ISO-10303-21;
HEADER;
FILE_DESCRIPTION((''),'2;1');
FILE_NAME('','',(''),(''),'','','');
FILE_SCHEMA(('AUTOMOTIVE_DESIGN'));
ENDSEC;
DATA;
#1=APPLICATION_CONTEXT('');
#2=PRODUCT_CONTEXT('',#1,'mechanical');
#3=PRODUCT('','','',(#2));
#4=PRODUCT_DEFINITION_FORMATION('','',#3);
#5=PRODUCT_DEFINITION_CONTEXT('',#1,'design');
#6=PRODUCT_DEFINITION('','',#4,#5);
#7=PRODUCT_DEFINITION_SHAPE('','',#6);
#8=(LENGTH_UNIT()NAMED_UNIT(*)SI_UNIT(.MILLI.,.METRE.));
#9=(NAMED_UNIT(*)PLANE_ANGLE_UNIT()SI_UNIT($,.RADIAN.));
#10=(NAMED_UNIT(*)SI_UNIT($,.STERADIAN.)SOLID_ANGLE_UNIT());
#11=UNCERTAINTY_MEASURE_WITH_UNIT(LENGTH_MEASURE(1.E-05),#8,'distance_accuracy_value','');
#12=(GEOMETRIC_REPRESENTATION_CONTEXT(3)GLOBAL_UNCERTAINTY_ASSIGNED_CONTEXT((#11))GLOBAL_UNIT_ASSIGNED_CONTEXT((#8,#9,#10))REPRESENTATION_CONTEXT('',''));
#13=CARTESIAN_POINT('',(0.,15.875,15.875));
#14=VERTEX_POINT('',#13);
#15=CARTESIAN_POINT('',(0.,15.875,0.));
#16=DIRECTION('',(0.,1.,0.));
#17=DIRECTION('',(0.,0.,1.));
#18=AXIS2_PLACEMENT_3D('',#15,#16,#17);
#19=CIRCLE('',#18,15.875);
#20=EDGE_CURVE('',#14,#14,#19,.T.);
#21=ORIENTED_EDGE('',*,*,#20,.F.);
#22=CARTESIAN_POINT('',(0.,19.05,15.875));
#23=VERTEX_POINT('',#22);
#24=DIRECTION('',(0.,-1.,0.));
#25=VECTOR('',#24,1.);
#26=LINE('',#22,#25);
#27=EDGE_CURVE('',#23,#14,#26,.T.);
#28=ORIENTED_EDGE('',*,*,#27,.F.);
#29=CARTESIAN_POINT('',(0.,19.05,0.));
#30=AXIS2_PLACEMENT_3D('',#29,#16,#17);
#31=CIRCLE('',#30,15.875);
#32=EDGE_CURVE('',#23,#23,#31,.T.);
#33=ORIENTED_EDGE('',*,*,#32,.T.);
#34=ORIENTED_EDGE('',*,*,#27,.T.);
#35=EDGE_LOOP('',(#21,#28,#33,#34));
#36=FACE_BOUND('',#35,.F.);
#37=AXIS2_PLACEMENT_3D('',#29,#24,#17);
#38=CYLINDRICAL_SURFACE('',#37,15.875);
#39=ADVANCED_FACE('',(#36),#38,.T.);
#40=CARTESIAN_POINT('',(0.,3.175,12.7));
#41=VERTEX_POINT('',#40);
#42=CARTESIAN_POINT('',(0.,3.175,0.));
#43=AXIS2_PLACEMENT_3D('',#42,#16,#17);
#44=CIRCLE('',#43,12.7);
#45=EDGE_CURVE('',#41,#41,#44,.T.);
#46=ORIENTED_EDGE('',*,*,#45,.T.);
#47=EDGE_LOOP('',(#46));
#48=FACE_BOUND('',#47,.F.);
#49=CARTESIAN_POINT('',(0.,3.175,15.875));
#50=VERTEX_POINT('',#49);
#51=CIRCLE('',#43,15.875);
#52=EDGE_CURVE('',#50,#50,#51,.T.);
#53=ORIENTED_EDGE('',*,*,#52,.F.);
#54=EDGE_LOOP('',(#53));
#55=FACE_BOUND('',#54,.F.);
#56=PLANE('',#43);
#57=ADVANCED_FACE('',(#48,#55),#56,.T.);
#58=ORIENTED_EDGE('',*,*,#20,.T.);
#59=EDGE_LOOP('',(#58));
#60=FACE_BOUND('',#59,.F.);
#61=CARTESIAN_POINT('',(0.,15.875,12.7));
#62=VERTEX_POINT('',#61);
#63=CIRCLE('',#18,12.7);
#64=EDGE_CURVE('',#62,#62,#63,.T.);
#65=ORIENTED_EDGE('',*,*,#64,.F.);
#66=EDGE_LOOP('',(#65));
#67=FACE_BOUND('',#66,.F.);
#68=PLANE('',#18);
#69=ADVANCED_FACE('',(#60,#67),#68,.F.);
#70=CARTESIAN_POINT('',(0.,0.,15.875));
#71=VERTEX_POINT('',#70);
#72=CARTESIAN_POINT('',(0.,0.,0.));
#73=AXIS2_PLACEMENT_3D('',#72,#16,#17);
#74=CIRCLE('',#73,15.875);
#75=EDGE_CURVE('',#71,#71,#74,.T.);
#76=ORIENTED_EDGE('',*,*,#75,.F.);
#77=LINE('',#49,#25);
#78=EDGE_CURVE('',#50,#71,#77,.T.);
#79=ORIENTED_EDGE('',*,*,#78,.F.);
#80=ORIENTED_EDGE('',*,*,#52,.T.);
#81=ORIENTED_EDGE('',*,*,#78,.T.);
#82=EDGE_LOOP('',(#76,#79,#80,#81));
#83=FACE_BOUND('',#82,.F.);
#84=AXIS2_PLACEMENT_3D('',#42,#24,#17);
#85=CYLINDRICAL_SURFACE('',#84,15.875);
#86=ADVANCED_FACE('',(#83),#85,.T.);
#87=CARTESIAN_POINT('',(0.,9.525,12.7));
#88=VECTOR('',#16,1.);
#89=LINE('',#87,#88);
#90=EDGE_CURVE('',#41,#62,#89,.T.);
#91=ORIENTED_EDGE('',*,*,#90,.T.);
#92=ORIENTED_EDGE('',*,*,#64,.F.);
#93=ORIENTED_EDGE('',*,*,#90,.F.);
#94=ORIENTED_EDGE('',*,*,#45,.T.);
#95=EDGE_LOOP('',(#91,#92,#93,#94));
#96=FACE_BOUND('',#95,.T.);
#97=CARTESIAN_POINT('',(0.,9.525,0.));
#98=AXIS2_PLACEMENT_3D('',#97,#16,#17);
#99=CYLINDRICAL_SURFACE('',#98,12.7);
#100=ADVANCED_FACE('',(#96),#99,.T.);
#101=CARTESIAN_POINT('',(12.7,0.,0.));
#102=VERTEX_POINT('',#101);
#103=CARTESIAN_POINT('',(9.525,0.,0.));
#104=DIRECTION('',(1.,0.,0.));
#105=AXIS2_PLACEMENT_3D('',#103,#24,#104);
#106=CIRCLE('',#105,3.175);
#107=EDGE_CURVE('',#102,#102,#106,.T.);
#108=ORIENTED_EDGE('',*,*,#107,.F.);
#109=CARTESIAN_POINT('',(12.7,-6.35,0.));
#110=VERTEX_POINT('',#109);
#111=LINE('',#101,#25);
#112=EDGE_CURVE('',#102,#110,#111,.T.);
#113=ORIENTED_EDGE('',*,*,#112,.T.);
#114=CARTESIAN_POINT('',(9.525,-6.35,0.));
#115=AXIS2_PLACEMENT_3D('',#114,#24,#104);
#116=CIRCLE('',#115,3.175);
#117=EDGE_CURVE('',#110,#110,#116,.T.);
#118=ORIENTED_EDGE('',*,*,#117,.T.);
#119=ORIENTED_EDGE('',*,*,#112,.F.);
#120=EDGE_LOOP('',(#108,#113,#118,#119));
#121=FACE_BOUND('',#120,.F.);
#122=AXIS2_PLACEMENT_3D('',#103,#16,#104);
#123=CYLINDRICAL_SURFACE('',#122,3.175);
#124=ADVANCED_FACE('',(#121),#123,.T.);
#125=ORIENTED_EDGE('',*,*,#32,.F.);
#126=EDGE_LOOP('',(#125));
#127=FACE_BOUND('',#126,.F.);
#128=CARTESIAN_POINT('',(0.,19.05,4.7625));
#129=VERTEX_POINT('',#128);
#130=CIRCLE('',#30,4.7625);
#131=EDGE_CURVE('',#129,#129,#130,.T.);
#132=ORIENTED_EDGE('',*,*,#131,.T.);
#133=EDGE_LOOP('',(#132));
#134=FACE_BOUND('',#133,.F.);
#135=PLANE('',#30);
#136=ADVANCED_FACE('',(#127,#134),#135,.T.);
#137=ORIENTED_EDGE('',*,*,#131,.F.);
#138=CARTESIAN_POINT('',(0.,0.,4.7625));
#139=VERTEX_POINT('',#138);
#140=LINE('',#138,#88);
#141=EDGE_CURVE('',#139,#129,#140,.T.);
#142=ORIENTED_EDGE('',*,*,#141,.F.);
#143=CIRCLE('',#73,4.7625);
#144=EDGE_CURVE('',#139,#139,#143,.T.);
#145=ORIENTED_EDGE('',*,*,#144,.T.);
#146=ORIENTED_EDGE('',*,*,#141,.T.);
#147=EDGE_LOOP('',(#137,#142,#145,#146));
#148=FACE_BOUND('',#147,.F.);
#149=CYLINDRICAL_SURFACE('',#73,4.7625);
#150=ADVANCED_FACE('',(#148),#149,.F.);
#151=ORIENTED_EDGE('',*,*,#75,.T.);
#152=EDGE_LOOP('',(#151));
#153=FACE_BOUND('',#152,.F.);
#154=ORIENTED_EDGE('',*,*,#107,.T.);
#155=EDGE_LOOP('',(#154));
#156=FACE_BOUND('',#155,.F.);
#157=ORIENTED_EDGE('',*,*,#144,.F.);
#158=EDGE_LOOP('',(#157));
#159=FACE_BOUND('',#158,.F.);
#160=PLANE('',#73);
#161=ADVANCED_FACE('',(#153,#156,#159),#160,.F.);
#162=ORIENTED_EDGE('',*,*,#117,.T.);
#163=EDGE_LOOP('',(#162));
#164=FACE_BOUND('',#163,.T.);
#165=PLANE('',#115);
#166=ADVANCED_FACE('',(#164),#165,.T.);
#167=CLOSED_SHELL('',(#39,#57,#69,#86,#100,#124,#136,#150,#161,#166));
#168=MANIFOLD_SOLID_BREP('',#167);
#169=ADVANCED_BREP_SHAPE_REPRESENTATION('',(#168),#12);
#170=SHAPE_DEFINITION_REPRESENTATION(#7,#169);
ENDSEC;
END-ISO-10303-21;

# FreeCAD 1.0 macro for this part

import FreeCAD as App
import Part
import Sketcher

V = App.Vector
Q = App.Units.Quantity


def add_polygon(sketch, points):
    """Adds a closed chain of lines whose ends are joined by coincident constraints."""
    first, n = sketch.GeometryCount, len(points)
    for a, b in zip(points, points[1:] + points[:1]):
        sketch.addGeometry(Part.LineSegment(App.Vector(*a, 0), App.Vector(*b, 0)), False)
    for i in range(n):
        sketch.addConstraint(Sketcher.Constraint("Coincident", first + i, 2, first + (i + 1) % n, 1))

doc = App.newDocument("Part")
body = doc.addObject("PartDesign::Body", "Body")

sketch1 = doc.addObject("Sketcher::SketchObject", "Sketch")
body.addObject(sketch1)
sketch1.AttachmentSupport = (doc.YZ_Plane, [""])
sketch1.MapMode = "FlatFace"
add_polygon(sketch1, [(15.9, 12.7), (3.2, 12.7), (3.2, 15.9), (0, 15.9), (0, 4.8), (19.1, 4.8), (19.1, 15.9), (15.9, 15.9)])
sketch1.addConstraint([
    Sketcher.Constraint("Horizontal", 0),
    Sketcher.Constraint("Vertical", 1),
    Sketcher.Constraint("Horizontal", 2),
    Sketcher.Constraint("Vertical", 3),
    Sketcher.Constraint("Horizontal", 4),
    Sketcher.Constraint("Vertical", 5),
    Sketcher.Constraint("Horizontal", 6),
    Sketcher.Constraint("Vertical", 7),
    Sketcher.Constraint("PointOnObject", 2, 2, -2),
    Sketcher.Constraint("Horizontal", 2, 2, 5, 2),
    Sketcher.Constraint("Equal", 2, 6),
    Sketcher.Constraint("Equal", 6, 1),
    Sketcher.Constraint("DistanceX", 0, 2, 0, 1, Q("0.5 in")),
    Sketcher.Constraint("DistanceX", 4, 1, 4, 2, Q("0.75 in")),
    Sketcher.Constraint("DistanceY", -1, 1, 0, 2, Q("0.5 in")),
    Sketcher.Constraint("DistanceY", 3, 2, 3, 1, Q("0.4375 in")),
])
revolution = doc.addObject("PartDesign::Revolution", "Revolution")
body.addObject(revolution)
revolution.Profile = sketch1
revolution.ReferenceAxis = (sketch1, ["H_Axis"])
revolution.Angle = 360

sketch2 = doc.addObject("Sketcher::SketchObject", "Sketch001")
body.addObject(sketch2)
sketch2.AttachmentSupport = (doc.XZ_Plane, [""])
sketch2.MapMode = "FlatFace"
sketch2.addGeometry(Part.Circle(V(9.5, 0, 0), V(0, 0, 1), 3.2), False)
sketch2.addConstraint([
    Sketcher.Constraint("PointOnObject", 0, 3, -1),
    Sketcher.Constraint("Diameter", 0, Q("0.25 in")),
    Sketcher.Constraint("DistanceX", -1, 1, 0, 3, Q("0.375 in")),
])
pad1 = doc.addObject("PartDesign::Pad", "Pad")
body.addObject(pad1)
pad1.Profile = sketch2
pad1.Length = Q("0.25 in")

doc.recompute()
